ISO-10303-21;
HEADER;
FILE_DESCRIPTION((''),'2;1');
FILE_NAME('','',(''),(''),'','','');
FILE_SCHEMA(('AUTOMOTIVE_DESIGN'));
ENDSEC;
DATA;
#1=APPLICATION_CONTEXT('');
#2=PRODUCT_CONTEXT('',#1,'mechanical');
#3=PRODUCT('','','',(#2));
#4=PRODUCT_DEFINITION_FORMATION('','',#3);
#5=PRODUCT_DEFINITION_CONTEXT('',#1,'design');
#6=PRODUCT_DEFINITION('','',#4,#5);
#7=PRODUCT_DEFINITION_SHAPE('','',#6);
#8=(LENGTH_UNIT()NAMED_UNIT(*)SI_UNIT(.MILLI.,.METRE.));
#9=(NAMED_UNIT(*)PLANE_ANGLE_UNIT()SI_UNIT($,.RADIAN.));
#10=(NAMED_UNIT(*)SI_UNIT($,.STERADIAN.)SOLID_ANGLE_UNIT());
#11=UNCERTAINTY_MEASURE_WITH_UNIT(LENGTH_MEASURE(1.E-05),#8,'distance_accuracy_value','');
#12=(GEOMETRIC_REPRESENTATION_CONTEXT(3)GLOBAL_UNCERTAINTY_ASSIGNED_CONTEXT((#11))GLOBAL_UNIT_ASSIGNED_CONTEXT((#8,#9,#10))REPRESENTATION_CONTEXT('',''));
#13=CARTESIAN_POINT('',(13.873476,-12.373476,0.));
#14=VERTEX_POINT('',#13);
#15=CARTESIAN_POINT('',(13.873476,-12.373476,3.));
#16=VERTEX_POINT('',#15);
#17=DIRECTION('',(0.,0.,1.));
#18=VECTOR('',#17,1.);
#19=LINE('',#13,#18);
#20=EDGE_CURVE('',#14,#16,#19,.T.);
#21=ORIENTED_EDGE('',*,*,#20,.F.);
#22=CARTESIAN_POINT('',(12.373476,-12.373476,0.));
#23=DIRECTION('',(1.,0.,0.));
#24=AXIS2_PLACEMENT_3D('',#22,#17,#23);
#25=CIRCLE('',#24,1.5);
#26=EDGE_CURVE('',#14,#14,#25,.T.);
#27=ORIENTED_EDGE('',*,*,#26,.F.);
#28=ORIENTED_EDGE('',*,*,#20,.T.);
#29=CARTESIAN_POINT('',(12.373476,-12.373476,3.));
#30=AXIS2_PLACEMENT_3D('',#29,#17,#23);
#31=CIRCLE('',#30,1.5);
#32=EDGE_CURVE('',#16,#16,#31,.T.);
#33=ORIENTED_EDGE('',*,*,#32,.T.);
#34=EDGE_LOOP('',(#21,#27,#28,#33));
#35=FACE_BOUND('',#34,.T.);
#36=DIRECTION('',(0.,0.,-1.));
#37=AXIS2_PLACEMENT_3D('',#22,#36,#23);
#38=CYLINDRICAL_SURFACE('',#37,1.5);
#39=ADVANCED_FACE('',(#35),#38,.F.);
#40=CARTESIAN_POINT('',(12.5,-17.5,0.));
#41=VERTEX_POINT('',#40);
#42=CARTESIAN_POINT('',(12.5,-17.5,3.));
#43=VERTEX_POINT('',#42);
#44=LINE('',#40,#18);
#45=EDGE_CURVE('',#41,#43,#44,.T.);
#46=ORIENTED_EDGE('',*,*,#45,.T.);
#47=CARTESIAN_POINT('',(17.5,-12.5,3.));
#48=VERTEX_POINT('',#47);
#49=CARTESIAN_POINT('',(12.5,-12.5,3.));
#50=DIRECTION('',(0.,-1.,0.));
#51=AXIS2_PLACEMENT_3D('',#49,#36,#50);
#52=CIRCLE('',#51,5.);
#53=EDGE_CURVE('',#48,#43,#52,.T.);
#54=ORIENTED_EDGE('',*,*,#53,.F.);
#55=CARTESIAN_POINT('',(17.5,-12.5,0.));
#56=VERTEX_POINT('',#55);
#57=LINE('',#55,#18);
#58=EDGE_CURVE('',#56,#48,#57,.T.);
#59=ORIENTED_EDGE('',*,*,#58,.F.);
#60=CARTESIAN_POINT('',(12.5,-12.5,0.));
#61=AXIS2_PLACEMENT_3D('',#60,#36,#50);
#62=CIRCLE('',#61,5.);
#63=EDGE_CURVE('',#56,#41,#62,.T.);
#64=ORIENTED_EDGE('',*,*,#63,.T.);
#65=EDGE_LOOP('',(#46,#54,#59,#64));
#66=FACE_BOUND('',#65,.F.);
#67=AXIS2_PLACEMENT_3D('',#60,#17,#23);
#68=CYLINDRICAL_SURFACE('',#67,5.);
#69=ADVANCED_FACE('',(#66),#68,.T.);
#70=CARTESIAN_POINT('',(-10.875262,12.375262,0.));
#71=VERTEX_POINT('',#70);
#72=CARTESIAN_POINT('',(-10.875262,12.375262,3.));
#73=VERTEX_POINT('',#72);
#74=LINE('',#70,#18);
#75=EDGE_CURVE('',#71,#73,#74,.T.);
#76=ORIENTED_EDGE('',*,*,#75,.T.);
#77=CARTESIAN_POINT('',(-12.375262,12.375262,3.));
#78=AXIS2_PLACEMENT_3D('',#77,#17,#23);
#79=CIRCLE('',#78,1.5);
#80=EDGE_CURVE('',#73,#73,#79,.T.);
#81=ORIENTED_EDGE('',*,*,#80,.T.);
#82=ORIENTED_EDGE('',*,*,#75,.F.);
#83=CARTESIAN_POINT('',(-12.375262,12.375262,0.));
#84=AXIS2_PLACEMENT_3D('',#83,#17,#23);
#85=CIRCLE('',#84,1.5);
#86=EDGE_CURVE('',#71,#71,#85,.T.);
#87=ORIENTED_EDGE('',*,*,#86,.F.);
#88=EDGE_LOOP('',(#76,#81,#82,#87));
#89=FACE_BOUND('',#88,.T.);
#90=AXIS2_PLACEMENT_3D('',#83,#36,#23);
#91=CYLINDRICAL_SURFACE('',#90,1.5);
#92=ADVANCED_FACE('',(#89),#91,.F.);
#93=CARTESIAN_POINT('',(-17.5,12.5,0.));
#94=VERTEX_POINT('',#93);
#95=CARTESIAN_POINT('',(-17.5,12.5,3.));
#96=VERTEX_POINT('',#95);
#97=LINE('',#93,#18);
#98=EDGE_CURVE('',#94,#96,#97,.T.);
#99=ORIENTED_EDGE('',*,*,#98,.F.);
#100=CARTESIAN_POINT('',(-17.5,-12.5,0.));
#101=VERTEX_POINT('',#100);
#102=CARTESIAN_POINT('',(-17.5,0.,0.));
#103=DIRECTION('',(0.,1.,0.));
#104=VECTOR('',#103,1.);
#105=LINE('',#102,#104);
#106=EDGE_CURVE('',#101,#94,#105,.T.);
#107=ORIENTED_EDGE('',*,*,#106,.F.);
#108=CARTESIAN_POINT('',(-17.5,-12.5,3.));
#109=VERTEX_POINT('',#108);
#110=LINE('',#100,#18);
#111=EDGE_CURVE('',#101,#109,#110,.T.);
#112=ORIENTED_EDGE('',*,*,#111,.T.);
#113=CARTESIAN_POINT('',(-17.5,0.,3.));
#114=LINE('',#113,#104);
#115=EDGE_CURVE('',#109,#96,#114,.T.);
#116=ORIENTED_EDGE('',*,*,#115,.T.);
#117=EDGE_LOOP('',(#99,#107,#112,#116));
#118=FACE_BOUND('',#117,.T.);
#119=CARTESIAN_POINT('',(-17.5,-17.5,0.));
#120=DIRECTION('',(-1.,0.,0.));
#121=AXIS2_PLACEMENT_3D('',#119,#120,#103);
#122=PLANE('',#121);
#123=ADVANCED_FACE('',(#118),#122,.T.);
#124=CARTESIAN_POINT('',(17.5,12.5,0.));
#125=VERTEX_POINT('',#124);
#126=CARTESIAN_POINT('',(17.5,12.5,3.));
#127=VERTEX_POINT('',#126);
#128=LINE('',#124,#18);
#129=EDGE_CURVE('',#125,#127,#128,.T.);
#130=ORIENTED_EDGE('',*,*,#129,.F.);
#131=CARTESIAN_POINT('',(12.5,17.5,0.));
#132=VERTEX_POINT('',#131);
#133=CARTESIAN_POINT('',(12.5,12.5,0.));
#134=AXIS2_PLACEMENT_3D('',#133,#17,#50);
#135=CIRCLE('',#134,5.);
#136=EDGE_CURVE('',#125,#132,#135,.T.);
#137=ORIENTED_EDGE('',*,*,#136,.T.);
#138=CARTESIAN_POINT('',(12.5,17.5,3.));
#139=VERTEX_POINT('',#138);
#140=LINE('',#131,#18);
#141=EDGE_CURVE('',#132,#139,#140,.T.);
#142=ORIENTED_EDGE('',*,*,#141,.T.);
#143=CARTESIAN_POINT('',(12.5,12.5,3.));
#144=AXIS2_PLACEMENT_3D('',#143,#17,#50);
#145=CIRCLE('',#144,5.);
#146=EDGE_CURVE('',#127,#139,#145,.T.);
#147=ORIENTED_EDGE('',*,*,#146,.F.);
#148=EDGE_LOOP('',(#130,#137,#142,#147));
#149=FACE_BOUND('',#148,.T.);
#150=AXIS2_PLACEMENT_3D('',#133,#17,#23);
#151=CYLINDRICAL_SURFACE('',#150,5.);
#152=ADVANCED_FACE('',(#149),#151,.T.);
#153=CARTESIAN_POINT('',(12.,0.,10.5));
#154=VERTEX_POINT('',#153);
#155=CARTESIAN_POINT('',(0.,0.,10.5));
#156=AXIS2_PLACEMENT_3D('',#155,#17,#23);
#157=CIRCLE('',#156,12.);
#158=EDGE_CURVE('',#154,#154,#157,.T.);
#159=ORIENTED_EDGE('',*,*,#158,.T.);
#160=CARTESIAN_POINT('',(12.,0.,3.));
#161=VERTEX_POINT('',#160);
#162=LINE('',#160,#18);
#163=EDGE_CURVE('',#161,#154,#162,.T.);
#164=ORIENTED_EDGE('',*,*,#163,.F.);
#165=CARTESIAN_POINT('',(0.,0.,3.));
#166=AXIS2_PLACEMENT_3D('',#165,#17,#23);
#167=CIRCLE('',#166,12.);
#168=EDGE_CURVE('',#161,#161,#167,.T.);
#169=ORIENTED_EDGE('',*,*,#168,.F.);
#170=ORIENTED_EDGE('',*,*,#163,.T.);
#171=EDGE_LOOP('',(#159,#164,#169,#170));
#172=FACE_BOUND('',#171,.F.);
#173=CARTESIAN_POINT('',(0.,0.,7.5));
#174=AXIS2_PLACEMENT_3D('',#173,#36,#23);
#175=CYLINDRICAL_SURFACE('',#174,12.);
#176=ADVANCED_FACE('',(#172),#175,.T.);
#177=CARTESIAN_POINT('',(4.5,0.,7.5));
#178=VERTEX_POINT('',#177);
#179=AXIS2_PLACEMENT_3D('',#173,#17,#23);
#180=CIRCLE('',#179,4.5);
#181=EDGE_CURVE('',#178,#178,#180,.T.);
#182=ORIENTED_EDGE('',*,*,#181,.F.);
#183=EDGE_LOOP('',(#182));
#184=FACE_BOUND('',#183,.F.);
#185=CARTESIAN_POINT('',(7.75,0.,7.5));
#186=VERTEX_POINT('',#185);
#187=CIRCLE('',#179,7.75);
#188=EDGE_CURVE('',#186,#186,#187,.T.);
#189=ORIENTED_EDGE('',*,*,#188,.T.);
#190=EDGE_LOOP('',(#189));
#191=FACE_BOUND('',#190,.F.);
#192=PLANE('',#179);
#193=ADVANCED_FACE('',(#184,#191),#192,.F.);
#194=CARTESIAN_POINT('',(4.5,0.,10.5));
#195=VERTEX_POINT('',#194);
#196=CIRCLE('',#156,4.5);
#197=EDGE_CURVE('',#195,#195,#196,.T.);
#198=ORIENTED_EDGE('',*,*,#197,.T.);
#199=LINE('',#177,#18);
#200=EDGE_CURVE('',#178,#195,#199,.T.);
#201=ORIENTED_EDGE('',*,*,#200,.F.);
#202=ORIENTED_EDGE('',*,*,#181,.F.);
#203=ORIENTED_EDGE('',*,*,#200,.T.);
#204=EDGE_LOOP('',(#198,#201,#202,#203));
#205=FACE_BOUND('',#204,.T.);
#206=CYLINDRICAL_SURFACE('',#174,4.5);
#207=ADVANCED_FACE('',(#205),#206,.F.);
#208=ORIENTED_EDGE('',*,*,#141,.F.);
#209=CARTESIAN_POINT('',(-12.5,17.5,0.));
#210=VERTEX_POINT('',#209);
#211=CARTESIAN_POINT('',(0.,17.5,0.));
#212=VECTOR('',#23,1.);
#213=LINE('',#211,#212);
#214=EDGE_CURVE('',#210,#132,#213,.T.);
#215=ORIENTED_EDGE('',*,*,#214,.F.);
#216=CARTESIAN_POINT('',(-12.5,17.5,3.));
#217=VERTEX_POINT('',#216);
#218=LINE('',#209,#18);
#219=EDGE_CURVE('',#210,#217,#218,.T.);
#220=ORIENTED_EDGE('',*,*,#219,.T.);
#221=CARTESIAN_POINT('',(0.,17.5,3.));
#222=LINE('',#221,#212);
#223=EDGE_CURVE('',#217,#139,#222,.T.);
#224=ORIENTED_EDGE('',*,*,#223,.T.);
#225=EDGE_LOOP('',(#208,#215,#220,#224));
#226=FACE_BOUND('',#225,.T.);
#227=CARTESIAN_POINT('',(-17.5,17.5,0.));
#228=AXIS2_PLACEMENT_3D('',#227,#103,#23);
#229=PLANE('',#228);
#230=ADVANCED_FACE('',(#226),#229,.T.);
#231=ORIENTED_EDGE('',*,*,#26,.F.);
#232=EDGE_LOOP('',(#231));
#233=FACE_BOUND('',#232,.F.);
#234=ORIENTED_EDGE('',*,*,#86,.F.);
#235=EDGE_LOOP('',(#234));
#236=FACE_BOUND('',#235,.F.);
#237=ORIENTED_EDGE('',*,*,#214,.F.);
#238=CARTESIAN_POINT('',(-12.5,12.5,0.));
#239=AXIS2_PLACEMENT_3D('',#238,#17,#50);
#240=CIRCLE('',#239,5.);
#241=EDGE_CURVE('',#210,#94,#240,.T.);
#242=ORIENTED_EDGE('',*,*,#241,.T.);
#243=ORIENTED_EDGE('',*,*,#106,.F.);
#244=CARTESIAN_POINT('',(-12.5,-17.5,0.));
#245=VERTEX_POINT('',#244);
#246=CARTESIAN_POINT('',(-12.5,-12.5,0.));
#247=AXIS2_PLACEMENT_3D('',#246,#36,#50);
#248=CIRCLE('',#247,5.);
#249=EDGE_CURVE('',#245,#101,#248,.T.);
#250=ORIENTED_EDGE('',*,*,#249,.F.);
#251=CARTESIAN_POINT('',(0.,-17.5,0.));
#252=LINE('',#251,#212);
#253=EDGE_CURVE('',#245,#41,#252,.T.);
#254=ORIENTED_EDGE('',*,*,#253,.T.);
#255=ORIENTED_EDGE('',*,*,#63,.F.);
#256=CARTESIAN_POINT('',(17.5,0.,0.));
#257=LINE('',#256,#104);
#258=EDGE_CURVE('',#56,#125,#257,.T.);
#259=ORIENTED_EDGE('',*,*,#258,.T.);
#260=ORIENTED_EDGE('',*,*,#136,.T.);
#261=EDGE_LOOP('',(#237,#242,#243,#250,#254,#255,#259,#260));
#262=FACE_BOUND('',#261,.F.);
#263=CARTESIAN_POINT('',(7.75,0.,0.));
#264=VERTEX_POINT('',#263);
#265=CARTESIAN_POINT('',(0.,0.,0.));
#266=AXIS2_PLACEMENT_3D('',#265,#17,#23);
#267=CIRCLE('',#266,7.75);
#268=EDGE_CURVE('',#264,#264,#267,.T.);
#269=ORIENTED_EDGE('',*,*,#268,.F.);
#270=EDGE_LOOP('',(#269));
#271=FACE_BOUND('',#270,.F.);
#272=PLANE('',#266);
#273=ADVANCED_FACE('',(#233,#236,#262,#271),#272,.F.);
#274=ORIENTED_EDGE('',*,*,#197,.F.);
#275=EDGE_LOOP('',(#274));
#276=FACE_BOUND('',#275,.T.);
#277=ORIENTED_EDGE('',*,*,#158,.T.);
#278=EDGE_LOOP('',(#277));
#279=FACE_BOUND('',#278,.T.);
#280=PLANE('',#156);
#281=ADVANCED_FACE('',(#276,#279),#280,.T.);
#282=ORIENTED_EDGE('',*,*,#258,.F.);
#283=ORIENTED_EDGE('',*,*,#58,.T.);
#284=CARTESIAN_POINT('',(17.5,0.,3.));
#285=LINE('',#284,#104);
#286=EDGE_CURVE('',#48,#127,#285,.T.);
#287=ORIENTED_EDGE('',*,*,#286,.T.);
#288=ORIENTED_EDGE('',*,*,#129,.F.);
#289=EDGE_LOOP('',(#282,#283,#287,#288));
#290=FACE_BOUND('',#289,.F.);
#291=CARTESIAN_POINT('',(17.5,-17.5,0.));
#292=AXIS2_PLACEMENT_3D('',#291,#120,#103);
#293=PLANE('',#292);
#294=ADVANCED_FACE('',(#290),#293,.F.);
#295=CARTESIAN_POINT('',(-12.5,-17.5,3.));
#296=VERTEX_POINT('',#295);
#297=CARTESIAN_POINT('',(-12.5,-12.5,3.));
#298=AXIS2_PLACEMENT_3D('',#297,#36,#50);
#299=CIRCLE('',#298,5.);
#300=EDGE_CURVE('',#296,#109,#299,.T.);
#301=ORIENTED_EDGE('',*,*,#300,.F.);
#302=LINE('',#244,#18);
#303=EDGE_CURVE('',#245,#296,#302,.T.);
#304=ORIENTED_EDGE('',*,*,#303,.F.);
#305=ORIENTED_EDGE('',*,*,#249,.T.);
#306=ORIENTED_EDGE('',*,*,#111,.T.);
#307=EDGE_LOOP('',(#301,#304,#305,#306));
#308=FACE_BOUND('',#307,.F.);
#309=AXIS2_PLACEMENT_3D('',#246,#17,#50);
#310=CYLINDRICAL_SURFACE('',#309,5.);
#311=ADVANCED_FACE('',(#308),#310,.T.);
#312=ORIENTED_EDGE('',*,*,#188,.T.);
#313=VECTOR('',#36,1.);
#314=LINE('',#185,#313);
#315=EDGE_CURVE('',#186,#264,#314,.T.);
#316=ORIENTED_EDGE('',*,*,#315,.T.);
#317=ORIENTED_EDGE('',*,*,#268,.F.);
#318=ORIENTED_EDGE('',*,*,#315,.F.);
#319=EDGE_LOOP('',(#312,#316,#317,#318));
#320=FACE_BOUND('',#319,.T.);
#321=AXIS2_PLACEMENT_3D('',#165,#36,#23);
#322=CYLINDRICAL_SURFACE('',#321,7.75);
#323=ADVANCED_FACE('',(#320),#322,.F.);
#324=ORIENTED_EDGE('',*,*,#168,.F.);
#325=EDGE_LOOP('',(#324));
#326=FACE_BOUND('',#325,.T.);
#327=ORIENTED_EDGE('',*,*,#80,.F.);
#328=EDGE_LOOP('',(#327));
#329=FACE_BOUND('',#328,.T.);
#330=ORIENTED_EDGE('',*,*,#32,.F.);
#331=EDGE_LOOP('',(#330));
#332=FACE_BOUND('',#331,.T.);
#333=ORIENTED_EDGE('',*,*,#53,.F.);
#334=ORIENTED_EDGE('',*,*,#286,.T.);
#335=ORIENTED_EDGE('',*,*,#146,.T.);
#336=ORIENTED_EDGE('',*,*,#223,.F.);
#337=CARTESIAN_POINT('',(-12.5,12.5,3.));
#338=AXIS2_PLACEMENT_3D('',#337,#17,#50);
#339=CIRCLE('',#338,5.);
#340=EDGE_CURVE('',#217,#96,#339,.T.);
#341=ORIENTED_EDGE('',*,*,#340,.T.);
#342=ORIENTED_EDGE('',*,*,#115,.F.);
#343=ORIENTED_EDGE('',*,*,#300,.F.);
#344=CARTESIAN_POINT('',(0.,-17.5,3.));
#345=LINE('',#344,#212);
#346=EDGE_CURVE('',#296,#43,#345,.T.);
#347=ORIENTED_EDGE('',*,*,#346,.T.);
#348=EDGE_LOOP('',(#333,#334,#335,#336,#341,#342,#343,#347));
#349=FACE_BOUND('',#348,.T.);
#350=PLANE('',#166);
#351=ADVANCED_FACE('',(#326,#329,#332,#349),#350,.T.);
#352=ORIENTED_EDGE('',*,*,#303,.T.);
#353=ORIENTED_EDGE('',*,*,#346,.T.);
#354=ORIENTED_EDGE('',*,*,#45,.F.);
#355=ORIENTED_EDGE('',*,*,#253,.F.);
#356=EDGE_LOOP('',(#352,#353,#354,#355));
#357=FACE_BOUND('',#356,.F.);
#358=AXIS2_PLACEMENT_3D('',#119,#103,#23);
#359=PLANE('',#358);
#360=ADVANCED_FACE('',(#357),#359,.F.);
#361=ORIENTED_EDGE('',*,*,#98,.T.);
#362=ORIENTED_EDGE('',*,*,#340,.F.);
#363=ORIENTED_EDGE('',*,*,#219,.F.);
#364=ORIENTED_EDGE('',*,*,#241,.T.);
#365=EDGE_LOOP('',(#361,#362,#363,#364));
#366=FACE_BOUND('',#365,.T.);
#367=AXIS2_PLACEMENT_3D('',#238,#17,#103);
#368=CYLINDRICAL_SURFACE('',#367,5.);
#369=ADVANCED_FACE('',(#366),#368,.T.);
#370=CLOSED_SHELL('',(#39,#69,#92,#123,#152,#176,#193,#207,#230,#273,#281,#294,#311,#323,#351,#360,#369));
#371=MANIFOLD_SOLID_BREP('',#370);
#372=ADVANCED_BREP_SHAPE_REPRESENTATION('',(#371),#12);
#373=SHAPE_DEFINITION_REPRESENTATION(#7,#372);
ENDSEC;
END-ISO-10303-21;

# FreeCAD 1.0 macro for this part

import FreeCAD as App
import Part
import Sketcher
from FreeCAD import Vector


def edges_at(feature, points):
    """Names of the edges that pass closest to the given points."""
    edges = feature.Shape.Edges
    near = lambda p: min(range(len(edges)), key=lambda i: edges[i].distToShape(Part.Vertex(*p))[0])
    return sorted({f"Edge{near(p) + 1}" for p in points})


def add_polygon(sketch, points):
    """Adds a closed chain of lines whose ends are joined by coincident constraints."""
    first, n = sketch.GeometryCount, len(points)
    for a, b in zip(points, points[1:] + points[:1]):
        sketch.addGeometry(Part.LineSegment(App.Vector(*a, 0), App.Vector(*b, 0)), False)
    for i in range(n):
        sketch.addConstraint(Sketcher.Constraint("Coincident", first + i, 2, first + (i + 1) % n, 1))

doc = App.newDocument("Part")
body = doc.addObject("PartDesign::Body", "Body")

# Sketch on XY plane
sketch1 = body.newObject("Sketcher::SketchObject", "Sketch")
sketch1.AttachmentSupport = (doc.getObject("XY_Plane"), [""])
sketch1.MapMode = "FlatFace"
add_polygon(sketch1, [(-17.5, 17.5), (-17.5, -17.5), (17.5, -17.5), (17.5, 17.5)])  # lines 0-3
sketch1.addGeometry(Part.Circle(Vector(12.4, -12.4, 0), Vector(0, 0, 1), 1.5), False)  # 4
sketch1.addGeometry(Part.Circle(Vector(0, 0, 0), Vector(0, 0, 1), 7.8), False)  # 5
sketch1.addGeometry(Part.Circle(Vector(-12.4, 12.4, 0), Vector(0, 0, 1), 1.5), False)  # 6
sketch1.addConstraint([
    Sketcher.Constraint("Vertical", 0),
    Sketcher.Constraint("Horizontal", 1),
    Sketcher.Constraint("Vertical", 2),
    Sketcher.Constraint("Horizontal", 3),
    Sketcher.Constraint("Coincident", 5, 3, -1, 1),
    Sketcher.Constraint("Equal", 4, 6),
    Sketcher.Constraint("Symmetric", 0, 2, 2, 2, -1, 1),
    Sketcher.Constraint("Equal", 3, 0),
    Sketcher.Constraint("Diameter", 4, 3.0),
    Sketcher.Constraint("Diameter", 5, 15.5),
    Sketcher.Constraint("DistanceX", 1, 1, 1, 2, 35.0),
    Sketcher.Constraint("DistanceX", 6, 3, -1, 1, 12.375262),
    Sketcher.Constraint("DistanceY", -1, 1, 6, 3, 12.375262),
    Sketcher.Constraint("DistanceX", -1, 1, 4, 3, 12.373476),
    Sketcher.Constraint("DistanceY", 4, 3, -1, 1, 12.373476),
])
pad1 = body.newObject("PartDesign::Pad", "Pad")
pad1.Profile = sketch1
pad1.Length = 3

# Sketch on XY plane
sketch2 = body.newObject("Sketcher::SketchObject", "Sketch001")
sketch2.AttachmentSupport = (doc.getObject("XY_Plane"), [""])
sketch2.MapMode = "FlatFace"
sketch2.AttachmentOffset = App.Placement(Vector(0, 0, 3), App.Rotation())
sketch2.addGeometry([
    Part.Circle(Vector(0, 0, 0), Vector(0, 0, 1), 12),
    Part.Circle(Vector(0, 0, 0), Vector(0, 0, 1), 8),
], False)
sketch2.addConstraint([
    Sketcher.Constraint("Coincident", 0, 3, -1, 1),
    Sketcher.Constraint("Coincident", 1, 3, -1, 1),
    Sketcher.Constraint("Diameter", 0, 24.0),
    Sketcher.Constraint("Diameter", 1, 15.5),
])
pad2 = body.newObject("PartDesign::Pad", "Pad001")
pad2.Profile = sketch2
pad2.Length = 4.5

# Sketch on XY plane
sketch3 = body.newObject("Sketcher::SketchObject", "Sketch002")
sketch3.AttachmentSupport = (doc.getObject("XY_Plane"), [""])
sketch3.MapMode = "FlatFace"
sketch3.AttachmentOffset = App.Placement(Vector(0, 0, 7.5), App.Rotation())
sketch3.addGeometry([
    Part.Circle(Vector(0, 0, 0), Vector(0, 0, 1), 12),
    Part.Circle(Vector(0, 0, 0), Vector(0, 0, 1), 4.5),
], False)
sketch3.addConstraint([
    Sketcher.Constraint("Coincident", 0, 3, -1, 1),
    Sketcher.Constraint("Coincident", 1, 3, -1, 1),
    Sketcher.Constraint("Diameter", 0, 24.0),
    Sketcher.Constraint("Diameter", 1, 9.0),
])
pad3 = body.newObject("PartDesign::Pad", "Pad002")
pad3.Profile = sketch3
pad3.Length = 3
doc.recompute()

fillet = body.newObject("PartDesign::Fillet", "Fillet")
fillet.Base = (pad3, edges_at(pad3, [
    (17.5, -17.5, 1.5),
    (17.5, 17.5, 1.5),
    (-17.5, -17.5, 1.5),
    (-17.5, 17.5, 1.5),
]))
fillet.Radius = 5

doc.recompute()
